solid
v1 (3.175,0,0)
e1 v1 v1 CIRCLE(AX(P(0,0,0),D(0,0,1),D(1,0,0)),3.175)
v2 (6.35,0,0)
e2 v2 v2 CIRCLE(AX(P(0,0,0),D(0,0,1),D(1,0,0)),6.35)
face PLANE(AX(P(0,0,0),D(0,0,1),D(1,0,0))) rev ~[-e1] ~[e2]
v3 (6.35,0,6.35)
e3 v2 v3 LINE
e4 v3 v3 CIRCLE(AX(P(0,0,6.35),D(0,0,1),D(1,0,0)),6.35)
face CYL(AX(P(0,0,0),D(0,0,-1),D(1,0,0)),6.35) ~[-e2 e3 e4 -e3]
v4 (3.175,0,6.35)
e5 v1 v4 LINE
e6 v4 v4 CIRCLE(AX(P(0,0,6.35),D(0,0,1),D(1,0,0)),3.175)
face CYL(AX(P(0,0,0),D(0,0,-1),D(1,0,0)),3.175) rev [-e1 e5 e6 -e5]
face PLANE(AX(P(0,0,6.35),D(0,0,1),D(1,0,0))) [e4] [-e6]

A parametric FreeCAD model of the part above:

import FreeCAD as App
import Part
import Sketcher
from FreeCAD import Vector
Q = App.Units.Quantity

doc = App.newDocument("Part")
body = doc.addObject("PartDesign::Body", "Body")

sketch1 = doc.addObject("Sketcher::SketchObject", "Sketch")
body.addObject(sketch1)
sketch1.AttachmentSupport = (doc.XY_Plane, [""])
sketch1.MapMode = "FlatFace"
sketch1.addGeometry([
    Part.Circle(Vector(0, 0, 0), Vector(0, 0, 1), 6.3),
    Part.Circle(Vector(0, 0, 0), Vector(0, 0, 1), 3.2),
], False)
sketch1.addConstraint([
    Sketcher.Constraint("Coincident", 0, 3, -1, 1),
    Sketcher.Constraint("Coincident", 1, 3, -1, 1),
    Sketcher.Constraint("Diameter", 0, Q("0.5 in")),
    Sketcher.Constraint("Diameter", 1, Q("0.25 in")),
])
pad1 = doc.addObject("PartDesign::Pad", "Pad")
body.addObject(pad1)
pad1.Profile = sketch1
pad1.Length = Q("0.25 in")

doc.recompute()
